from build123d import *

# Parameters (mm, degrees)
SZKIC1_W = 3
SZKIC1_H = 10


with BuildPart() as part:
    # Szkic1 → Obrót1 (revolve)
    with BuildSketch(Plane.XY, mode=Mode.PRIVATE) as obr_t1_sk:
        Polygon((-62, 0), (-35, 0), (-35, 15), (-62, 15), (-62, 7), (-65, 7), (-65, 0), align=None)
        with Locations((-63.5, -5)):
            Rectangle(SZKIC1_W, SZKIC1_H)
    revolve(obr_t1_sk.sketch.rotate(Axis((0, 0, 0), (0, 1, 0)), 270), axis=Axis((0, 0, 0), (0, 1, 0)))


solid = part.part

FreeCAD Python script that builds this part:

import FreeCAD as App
import Part
import Sketcher
from FreeCAD import Vector


def add_polygon(sketch, points):
    """Adds a closed chain of lines whose ends are joined by coincident constraints."""
    first, n = sketch.GeometryCount, len(points)
    for a, b in zip(points, points[1:] + points[:1]):
        sketch.addGeometry(Part.LineSegment(App.Vector(*a, 0), App.Vector(*b, 0)), False)
    for i in range(n):
        sketch.addConstraint(Sketcher.Constraint("Coincident", first + i, 2, first + (i + 1) % n, 1))

doc = App.newDocument("Part")
body = doc.addObject("PartDesign::Body", "Body")

# Sketch on XY plane
sketch1 = body.newObject("Sketcher::SketchObject", "Sketch")
sketch1.AttachmentSupport = (doc.getObject("XY_Plane"), [""])
sketch1.MapMode = "FlatFace"
add_polygon(sketch1, [(-35, 0), (-35, 15), (-62, 15), (-62, 7), (-65, 7), (-65, -10), (-62, -10), (-62, 0)])  # lines 0-7
sketch1.addConstraint([
    Sketcher.Constraint("Vertical", 0),
    Sketcher.Constraint("Horizontal", 1),
    Sketcher.Constraint("Vertical", 2),
    Sketcher.Constraint("Horizontal", 3),
    Sketcher.Constraint("Vertical", 4),
    Sketcher.Constraint("Horizontal", 5),
    Sketcher.Constraint("Vertical", 6),
    Sketcher.Constraint("Horizontal", 7),
    Sketcher.Constraint("PointOnObject", 6, 2, -1),
    Sketcher.Constraint("Vertical", 2, 2, 5, 2),
    Sketcher.Constraint("DistanceX", 1, 2, 1, 1, 27.0),
    Sketcher.Constraint("DistanceX", 3, 2, 3, 1, 3.0),
    Sketcher.Constraint("DistanceY", 0, 1, 0, 2, 15.0),
    Sketcher.Constraint("DistanceY", 2, 2, 2, 1, 8.0),
    Sketcher.Constraint("DistanceY", 4, 2, 4, 1, 17.0),
    Sketcher.Constraint("DistanceX", 0, 2, -1, 1, 35.0),
])
revolution = body.newObject("PartDesign::Revolution", "Revolution")
revolution.Profile = sketch1
revolution.ReferenceAxis = (sketch1, ["V_Axis"])
revolution.Angle = 360

doc.recompute()
